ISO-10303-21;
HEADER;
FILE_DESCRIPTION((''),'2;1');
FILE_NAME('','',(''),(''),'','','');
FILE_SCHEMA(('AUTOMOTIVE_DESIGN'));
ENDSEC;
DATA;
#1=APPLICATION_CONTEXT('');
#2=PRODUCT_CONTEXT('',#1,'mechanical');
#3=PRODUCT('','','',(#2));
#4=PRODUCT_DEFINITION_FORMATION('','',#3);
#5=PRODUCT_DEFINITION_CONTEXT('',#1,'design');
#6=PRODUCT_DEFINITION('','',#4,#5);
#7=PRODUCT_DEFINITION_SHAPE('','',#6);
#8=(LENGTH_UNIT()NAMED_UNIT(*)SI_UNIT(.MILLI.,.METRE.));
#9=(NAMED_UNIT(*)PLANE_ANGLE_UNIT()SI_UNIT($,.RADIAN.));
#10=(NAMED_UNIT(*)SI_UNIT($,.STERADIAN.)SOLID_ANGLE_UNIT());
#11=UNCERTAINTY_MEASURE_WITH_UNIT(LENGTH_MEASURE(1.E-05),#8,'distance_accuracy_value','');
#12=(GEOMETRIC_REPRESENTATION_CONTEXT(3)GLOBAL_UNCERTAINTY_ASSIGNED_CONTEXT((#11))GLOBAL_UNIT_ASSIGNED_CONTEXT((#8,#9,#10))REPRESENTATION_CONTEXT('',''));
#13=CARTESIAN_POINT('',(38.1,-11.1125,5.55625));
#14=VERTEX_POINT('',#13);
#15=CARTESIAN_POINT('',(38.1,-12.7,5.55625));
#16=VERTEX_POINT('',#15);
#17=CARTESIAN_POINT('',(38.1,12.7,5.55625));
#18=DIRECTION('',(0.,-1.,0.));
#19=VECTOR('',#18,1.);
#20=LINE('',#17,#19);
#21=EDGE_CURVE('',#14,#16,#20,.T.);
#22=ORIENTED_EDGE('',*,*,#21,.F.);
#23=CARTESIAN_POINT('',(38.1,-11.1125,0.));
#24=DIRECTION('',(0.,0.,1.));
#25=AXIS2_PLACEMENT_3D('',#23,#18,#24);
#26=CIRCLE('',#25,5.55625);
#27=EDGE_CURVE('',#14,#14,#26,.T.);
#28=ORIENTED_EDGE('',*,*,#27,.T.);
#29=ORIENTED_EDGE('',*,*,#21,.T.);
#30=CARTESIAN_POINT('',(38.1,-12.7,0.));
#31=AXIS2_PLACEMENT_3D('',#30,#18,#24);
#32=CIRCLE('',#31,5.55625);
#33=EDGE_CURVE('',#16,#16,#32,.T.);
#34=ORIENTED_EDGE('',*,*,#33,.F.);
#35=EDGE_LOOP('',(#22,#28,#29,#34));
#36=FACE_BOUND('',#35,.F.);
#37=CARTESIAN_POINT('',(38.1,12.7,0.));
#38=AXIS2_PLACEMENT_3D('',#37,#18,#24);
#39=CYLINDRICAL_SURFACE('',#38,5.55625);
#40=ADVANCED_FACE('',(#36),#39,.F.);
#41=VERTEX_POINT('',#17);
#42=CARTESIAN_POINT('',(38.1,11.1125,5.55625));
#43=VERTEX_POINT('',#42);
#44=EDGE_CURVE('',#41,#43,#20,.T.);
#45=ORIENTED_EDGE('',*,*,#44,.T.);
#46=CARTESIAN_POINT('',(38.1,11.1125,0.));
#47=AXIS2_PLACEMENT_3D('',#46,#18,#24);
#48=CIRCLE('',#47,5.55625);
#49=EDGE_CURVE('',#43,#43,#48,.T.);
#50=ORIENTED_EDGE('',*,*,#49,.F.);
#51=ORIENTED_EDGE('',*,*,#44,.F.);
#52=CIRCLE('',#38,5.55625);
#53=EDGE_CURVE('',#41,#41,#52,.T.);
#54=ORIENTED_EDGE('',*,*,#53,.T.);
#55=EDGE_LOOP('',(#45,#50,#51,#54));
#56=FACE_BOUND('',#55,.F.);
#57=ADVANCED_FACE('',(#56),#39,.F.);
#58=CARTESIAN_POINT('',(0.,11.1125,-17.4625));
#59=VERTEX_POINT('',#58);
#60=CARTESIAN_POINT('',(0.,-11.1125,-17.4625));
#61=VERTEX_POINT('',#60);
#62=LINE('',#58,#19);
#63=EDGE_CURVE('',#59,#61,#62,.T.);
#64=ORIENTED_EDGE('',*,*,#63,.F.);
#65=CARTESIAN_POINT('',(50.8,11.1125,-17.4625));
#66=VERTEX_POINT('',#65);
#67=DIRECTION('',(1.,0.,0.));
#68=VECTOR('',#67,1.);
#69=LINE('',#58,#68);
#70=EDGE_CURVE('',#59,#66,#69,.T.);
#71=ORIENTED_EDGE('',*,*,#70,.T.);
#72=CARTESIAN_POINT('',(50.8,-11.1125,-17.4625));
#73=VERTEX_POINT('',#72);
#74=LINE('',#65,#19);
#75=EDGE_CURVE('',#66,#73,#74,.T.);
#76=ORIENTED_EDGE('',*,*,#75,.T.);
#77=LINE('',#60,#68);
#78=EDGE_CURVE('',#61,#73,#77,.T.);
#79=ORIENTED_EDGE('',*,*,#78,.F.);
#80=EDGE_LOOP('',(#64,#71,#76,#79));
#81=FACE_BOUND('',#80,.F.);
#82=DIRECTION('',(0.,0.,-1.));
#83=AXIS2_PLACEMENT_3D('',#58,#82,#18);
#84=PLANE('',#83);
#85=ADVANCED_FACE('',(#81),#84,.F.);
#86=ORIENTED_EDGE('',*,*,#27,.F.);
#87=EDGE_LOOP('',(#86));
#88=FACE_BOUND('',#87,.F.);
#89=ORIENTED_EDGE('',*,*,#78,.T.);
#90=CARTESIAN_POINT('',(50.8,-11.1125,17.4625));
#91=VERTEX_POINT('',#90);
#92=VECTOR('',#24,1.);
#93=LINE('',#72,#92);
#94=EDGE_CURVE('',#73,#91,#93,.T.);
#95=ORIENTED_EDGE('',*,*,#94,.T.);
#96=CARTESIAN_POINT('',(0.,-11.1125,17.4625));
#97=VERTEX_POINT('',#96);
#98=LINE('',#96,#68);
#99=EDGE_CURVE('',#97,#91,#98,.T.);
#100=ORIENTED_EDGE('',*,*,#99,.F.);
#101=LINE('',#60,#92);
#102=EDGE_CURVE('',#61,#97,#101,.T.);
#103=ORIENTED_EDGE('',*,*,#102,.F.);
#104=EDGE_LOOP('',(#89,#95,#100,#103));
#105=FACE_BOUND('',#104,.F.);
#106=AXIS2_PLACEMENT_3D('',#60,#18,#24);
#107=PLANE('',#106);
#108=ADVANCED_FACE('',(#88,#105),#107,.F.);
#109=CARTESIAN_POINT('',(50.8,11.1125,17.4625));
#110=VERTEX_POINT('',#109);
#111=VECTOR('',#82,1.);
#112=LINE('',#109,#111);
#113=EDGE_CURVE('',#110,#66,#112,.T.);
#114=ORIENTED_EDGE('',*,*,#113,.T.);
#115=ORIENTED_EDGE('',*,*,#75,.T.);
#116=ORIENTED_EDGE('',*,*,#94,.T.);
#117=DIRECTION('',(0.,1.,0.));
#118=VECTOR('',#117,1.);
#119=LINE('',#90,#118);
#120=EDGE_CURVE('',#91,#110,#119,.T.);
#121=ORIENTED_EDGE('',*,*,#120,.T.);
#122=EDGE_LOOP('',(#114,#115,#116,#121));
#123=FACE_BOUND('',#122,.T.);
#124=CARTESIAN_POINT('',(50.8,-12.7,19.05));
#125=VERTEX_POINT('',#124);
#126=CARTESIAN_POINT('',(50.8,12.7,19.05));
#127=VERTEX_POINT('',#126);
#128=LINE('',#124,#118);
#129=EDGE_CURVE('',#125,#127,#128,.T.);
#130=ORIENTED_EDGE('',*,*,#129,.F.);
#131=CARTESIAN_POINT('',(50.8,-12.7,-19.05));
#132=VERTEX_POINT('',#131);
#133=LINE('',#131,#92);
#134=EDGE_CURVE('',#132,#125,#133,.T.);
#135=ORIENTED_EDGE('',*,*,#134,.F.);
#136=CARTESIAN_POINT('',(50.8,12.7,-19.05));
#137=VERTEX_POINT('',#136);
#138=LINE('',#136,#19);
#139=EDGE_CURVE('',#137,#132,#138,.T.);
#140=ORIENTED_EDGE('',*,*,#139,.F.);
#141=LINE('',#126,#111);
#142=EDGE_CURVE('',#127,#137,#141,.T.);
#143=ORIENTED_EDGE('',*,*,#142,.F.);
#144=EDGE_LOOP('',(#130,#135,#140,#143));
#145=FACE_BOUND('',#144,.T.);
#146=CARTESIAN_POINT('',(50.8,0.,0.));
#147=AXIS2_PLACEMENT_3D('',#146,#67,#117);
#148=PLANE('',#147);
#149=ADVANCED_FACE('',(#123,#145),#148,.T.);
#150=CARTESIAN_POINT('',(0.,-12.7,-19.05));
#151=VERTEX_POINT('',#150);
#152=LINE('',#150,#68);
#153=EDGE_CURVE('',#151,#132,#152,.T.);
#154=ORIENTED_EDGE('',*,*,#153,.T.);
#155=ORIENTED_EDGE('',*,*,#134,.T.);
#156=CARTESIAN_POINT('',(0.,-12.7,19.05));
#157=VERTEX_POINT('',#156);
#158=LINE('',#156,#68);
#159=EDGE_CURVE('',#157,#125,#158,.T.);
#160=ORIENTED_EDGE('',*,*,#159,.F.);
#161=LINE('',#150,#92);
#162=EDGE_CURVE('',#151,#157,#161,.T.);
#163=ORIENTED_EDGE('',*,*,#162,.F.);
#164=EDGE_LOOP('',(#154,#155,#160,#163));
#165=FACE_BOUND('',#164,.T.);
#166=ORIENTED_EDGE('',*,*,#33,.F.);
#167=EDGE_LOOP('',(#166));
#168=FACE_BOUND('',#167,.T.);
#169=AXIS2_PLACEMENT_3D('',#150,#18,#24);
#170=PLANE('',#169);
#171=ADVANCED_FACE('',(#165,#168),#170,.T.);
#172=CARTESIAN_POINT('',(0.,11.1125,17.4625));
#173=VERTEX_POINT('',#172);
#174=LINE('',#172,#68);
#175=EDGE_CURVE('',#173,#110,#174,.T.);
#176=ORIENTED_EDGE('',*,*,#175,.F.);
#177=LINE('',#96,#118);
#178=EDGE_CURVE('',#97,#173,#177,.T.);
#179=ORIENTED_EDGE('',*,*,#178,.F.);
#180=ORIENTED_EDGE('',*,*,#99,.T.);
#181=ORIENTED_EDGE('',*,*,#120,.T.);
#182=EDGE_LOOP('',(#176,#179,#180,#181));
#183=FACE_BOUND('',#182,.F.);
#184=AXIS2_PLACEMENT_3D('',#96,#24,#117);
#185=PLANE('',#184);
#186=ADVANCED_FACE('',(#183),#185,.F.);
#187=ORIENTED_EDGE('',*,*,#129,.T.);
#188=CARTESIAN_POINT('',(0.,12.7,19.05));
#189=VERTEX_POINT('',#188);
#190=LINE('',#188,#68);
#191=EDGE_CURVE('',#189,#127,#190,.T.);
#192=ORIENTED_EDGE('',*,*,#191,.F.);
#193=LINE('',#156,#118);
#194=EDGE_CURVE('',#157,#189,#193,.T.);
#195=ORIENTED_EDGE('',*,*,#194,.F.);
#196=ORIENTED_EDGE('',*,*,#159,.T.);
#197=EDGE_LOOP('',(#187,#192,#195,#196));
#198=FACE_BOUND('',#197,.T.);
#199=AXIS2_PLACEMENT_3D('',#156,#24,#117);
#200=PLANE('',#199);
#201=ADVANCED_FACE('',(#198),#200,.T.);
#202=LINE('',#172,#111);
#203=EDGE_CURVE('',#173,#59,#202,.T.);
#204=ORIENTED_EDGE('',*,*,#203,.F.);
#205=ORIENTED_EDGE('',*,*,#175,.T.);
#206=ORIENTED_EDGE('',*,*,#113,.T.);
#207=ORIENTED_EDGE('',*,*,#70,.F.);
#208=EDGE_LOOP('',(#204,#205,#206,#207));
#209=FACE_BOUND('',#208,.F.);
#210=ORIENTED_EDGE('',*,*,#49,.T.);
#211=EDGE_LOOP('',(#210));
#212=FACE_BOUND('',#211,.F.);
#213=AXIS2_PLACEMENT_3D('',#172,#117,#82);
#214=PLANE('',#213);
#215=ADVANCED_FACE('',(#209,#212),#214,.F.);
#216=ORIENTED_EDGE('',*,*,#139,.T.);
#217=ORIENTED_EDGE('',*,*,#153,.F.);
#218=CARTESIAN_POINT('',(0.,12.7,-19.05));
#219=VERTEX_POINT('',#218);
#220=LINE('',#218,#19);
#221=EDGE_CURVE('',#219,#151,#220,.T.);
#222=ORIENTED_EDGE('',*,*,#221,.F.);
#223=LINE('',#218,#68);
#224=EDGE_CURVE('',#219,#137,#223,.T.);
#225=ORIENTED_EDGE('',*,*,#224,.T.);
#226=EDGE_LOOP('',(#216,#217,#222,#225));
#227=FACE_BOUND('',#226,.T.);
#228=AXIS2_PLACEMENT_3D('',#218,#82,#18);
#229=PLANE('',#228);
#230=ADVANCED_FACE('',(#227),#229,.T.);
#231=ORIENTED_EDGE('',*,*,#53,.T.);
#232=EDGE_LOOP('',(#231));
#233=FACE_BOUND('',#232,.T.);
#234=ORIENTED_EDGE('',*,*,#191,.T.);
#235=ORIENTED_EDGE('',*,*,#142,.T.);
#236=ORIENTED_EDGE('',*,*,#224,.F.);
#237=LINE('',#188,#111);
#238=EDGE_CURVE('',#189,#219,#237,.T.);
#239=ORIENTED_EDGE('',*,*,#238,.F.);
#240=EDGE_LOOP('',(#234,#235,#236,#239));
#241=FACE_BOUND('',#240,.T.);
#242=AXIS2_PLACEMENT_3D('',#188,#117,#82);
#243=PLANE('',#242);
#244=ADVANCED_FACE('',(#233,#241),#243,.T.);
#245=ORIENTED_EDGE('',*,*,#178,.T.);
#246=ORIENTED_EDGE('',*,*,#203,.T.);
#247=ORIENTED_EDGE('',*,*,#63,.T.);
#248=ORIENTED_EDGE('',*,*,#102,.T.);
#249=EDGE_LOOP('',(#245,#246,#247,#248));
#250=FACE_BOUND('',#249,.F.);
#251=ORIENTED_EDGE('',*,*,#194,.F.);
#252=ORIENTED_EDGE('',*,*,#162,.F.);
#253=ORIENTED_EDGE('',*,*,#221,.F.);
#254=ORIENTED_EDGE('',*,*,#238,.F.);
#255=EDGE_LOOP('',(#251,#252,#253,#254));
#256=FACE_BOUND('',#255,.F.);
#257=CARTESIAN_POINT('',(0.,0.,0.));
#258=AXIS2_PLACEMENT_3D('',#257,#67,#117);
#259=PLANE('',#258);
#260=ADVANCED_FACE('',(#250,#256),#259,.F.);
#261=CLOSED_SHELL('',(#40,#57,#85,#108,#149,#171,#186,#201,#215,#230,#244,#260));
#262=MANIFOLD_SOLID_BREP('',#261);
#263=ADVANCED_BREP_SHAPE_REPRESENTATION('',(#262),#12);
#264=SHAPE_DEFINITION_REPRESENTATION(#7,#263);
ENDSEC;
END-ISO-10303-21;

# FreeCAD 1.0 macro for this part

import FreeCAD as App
import Part
import Sketcher
Q = App.Units.Quantity

doc = App.newDocument("Part")
body = doc.addObject("PartDesign::Body", "Body")

# Sketch on YZ plane
sketch1 = body.newObject("Sketcher::SketchObject", "Sketch")
sketch1.AttachmentSupport = (doc.getObject("YZ_Plane"), [""])
sketch1.MapMode = "FlatFace"
sketch1.addGeometry([
    Part.LineSegment(App.Vector(13, 19, 0), App.Vector(-13, 19, 0)),  # 0
    Part.LineSegment(App.Vector(-13, 19, 0), App.Vector(-13, -19, 0)),  # 1
    Part.LineSegment(App.Vector(-13, -19, 0), App.Vector(13, -19, 0)),  # 2
    Part.LineSegment(App.Vector(13, -19, 0), App.Vector(13, 19, 0)),  # 3
    Part.LineSegment(App.Vector(-11, -17, 0), App.Vector(-11, 17, 0)),  # 4
    Part.LineSegment(App.Vector(-11, 17, 0), App.Vector(11, 17, 0)),  # 5
    Part.LineSegment(App.Vector(11, 17, 0), App.Vector(11, -17, 0)),  # 6
    Part.LineSegment(App.Vector(11, -17, 0), App.Vector(-11, -17, 0)),  # 7
], False)
sketch1.addConstraint([
    Sketcher.Constraint("Coincident", 0, 2, 1, 1),
    Sketcher.Constraint("Coincident", 1, 2, 2, 1),
    Sketcher.Constraint("Coincident", 2, 2, 3, 1),
    Sketcher.Constraint("Coincident", 3, 2, 0, 1),
    Sketcher.Constraint("Coincident", 4, 2, 5, 1),
    Sketcher.Constraint("Coincident", 5, 2, 6, 1),
    Sketcher.Constraint("Coincident", 6, 2, 7, 1),
    Sketcher.Constraint("Coincident", 7, 2, 4, 1),
    Sketcher.Constraint("Horizontal", 0),
    Sketcher.Constraint("Vertical", 1),
    Sketcher.Constraint("Horizontal", 2),
    Sketcher.Constraint("Vertical", 3),
    Sketcher.Constraint("Vertical", 4),
    Sketcher.Constraint("Horizontal", 5),
    Sketcher.Constraint("Vertical", 6),
    Sketcher.Constraint("Horizontal", 7),
    Sketcher.Constraint("Symmetric", 0, 2, 2, 2, -1, 1),
    Sketcher.Constraint("Symmetric", 4, 2, 6, 2, -1, 1),
    Sketcher.Constraint("DistanceX", 0, 2, 0, 1, Q("1 in")),
    Sketcher.Constraint("DistanceY", 1, 2, 1, 1, Q("1.5 in")),
    Sketcher.Constraint("DistanceX", 0, 2, 4, 2, Q("0.0625 in")),
    Sketcher.Constraint("DistanceY", 4, 2, 0, 2, Q("0.0625 in")),
])
pad1 = body.newObject("PartDesign::Pad", "Pad")
pad1.Profile = sketch1
pad1.Length = Q("2 in")

# Sketch on XZ plane
sketch2 = body.newObject("Sketcher::SketchObject", "Sketch001")
sketch2.AttachmentSupport = (doc.getObject("XZ_Plane"), [""])
sketch2.MapMode = "FlatFace"
sketch2.AttachmentOffset = App.Placement(App.Vector(0, 0, -0.5 * 25.4), App.Rotation())
sketch2.addGeometry(Part.Circle(App.Vector(38, 0, 0), App.Vector(0, 0, 1), 6), False)
sketch2.addConstraint([
    Sketcher.Constraint("PointOnObject", 0, 3, -1),
    Sketcher.Constraint("Diameter", 0, Q("0.4375 in")),
    Sketcher.Constraint("DistanceX", -1, 1, 0, 3, Q("1.5 in")),
])
doc.recompute()
hole = body.newObject("PartDesign::Hole", "Hole")
hole.Profile = sketch2
hole.ThreadType = "None"
hole.Diameter = Q("0.4375 in")
hole.DepthType = "ThroughAll"
hole.Reversed = True

doc.recompute()
